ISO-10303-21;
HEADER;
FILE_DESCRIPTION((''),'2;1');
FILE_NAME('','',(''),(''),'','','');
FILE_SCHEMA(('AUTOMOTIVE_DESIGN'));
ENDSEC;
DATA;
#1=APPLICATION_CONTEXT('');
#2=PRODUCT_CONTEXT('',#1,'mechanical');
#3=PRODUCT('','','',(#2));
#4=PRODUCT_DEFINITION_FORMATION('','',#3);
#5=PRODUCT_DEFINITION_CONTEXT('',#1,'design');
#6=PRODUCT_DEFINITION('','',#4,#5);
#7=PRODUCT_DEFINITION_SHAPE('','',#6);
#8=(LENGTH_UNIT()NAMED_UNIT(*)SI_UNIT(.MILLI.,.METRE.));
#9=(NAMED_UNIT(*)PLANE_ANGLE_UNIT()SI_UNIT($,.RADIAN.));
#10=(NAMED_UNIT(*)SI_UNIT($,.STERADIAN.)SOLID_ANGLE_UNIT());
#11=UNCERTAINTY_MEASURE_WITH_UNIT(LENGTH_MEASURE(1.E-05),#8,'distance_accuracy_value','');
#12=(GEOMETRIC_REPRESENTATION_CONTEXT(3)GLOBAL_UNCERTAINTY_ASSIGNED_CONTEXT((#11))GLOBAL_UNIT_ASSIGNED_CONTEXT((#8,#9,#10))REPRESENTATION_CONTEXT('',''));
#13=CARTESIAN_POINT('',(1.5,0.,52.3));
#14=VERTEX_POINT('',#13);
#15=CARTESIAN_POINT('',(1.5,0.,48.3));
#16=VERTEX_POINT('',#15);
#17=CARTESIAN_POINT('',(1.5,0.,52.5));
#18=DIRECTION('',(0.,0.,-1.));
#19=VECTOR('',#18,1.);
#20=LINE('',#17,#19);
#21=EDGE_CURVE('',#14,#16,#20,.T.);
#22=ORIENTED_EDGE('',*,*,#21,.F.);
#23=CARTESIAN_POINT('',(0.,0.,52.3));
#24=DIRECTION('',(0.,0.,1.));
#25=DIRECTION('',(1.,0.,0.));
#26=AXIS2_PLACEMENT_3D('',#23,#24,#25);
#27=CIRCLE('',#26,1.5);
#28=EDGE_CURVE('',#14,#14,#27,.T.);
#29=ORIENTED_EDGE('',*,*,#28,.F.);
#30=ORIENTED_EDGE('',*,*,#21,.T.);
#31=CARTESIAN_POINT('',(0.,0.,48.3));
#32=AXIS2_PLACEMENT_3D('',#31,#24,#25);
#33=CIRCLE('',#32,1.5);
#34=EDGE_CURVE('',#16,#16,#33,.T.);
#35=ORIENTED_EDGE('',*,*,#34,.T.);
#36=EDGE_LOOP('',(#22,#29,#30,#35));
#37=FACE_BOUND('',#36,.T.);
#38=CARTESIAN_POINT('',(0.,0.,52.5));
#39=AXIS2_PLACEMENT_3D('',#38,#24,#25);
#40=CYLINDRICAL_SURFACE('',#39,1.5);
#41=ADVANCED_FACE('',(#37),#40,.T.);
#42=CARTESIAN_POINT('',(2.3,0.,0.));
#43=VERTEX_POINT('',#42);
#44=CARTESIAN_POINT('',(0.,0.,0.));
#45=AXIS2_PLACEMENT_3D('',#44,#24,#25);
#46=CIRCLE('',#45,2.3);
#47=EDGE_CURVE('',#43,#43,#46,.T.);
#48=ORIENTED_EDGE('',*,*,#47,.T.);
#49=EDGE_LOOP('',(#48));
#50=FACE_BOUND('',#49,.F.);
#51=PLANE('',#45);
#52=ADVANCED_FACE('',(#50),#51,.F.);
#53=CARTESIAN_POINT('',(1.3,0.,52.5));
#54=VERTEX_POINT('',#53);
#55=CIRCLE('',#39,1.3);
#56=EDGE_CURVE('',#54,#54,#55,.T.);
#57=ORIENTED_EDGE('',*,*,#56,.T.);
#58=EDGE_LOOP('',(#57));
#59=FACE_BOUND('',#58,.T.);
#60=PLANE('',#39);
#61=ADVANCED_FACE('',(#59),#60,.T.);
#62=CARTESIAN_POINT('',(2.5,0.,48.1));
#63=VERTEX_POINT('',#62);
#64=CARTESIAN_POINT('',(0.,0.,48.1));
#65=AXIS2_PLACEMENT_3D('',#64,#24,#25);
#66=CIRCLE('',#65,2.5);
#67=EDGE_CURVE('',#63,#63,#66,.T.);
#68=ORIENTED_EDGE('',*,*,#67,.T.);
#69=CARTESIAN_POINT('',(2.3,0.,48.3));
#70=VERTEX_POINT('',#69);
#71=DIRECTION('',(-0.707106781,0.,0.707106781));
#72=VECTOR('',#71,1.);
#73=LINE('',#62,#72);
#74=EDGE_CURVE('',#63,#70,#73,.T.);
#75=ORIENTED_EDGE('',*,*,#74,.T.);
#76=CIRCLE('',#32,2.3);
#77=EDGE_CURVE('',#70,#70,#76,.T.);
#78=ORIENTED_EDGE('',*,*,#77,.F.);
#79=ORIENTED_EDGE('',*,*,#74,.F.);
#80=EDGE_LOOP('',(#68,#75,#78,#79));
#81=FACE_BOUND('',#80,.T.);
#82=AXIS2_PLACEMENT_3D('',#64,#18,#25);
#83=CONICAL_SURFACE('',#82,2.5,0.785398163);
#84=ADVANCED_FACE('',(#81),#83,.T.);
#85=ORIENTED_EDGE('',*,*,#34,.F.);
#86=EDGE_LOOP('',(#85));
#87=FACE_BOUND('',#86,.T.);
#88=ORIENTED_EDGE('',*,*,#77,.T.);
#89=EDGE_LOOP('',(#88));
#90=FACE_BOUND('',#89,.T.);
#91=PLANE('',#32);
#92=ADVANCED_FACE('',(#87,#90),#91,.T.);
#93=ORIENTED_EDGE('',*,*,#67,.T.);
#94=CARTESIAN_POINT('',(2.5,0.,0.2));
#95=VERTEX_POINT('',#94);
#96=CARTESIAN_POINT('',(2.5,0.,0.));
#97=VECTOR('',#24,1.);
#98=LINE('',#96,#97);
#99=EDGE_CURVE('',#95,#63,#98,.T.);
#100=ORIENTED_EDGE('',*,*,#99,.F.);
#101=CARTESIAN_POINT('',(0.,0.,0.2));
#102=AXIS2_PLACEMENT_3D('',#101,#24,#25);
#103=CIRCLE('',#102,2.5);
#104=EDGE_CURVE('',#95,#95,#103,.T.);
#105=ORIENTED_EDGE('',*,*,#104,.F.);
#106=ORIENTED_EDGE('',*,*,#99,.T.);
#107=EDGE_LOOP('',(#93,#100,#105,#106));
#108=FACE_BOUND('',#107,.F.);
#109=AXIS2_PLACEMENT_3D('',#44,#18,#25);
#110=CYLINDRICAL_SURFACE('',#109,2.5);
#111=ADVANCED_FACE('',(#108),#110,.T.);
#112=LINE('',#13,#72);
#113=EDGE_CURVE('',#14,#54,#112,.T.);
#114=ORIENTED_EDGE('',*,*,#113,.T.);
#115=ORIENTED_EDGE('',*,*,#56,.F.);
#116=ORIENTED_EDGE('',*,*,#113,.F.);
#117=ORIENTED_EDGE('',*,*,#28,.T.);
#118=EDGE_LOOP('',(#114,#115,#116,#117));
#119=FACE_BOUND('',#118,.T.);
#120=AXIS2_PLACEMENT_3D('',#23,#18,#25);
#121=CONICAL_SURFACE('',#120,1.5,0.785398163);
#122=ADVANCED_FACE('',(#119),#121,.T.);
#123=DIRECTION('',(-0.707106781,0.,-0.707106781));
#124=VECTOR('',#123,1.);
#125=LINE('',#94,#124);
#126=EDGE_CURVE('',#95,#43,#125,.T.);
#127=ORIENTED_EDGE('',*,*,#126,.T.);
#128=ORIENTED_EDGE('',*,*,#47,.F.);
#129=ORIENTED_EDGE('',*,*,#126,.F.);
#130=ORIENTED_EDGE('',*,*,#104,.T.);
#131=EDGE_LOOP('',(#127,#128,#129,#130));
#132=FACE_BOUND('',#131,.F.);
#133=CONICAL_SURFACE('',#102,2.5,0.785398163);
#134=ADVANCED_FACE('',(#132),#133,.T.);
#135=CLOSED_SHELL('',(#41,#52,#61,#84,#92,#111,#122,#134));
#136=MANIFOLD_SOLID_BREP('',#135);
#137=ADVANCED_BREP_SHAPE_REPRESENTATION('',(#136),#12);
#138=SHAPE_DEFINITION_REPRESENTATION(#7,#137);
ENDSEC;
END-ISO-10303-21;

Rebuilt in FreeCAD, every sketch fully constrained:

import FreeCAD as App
import Part
import Sketcher
Q = App.Units.Quantity


def edges_at(feature, points):
    """Names of the edges that pass closest to the given points."""
    edges = feature.Shape.Edges
    near = lambda p: min(range(len(edges)), key=lambda i: edges[i].distToShape(Part.Vertex(*p))[0])
    return sorted({f"Edge{near(p) + 1}" for p in points})

doc = App.newDocument("Part")
params = doc.addObject("Spreadsheet::Sheet", "Params")
for row, (alias, value) in enumerate([
    ("sketch1_diameter", "5 mm"),
    ("pad1_length", "52.5 mm"),
    ("sketch2_diameter", "3 mm"),
    ("sketch2_diameter2", "5 mm"),
    ("pocket1_length", "4.2 mm"),
    ("chamfer_size", "0.2 mm"),
], start=1):
    params.set(f"A{row}", alias)
    params.set(f"B{row}", "=" + value)
    params.setAlias(f"B{row}", alias)

body = doc.addObject("PartDesign::Body", "Body")

sketch1 = body.newObject("Sketcher::SketchObject", "Sketch")
sketch1.AttachmentSupport = (doc.getObject("XY_Plane"), [""])
sketch1.MapMode = "FlatFace"
sketch1.addGeometry(Part.Circle(App.Vector(0, 0, 0), App.Vector(0, 0, 1), 2.5), False)
sketch1.addConstraint([
    Sketcher.Constraint("Coincident", 0, 3, -1, 1),
    Sketcher.Constraint("Diameter", 0, Q("5 mm")),
])
sketch1.setExpression("Constraints[1]", "Params.sketch1_diameter")
pad1 = body.newObject("PartDesign::Pad", "Pad")
pad1.Profile = sketch1
pad1.setExpression("Length", "Params.pad1_length")

sketch2 = body.newObject("Sketcher::SketchObject", "Sketch001")
sketch2.AttachmentSupport = (doc.getObject("XY_Plane"), [""])
sketch2.MapMode = "FlatFace"
sketch2.AttachmentOffset = App.Placement(App.Vector(0, 0, 52.5), App.Rotation())
sketch2.addGeometry([
    Part.Circle(App.Vector(0, 0, 0), App.Vector(0, 0, 1), 2.5),
    Part.Circle(App.Vector(0, 0, 0), App.Vector(0, 0, 1), 1.5),
], False)
sketch2.addConstraint([
    Sketcher.Constraint("Coincident", 0, 3, -1, 1),
    Sketcher.Constraint("Coincident", 1, 3, -1, 1),
    Sketcher.Constraint("Diameter", 1, Q("3 mm")),
    Sketcher.Constraint("Diameter", 0, Q("5 mm")),
])
sketch2.setExpression("Constraints[2]", "Params.sketch2_diameter")
sketch2.setExpression("Constraints[3]", "Params.sketch2_diameter2")
pocket1 = body.newObject("PartDesign::Pocket", "Pocket")
pocket1.Profile = sketch2
pocket1.setExpression("Length", "Params.pocket1_length")
doc.recompute()

chamfer = body.newObject("PartDesign::Chamfer", "Chamfer")
chamfer.Base = (pocket1, edges_at(pocket1, [(-1.5, 0, 52.5), (-2.5, 0, 48.3), (-2.5, 0, 0)]))
chamfer.setExpression("Size", "Params.chamfer_size")

doc.recompute()
